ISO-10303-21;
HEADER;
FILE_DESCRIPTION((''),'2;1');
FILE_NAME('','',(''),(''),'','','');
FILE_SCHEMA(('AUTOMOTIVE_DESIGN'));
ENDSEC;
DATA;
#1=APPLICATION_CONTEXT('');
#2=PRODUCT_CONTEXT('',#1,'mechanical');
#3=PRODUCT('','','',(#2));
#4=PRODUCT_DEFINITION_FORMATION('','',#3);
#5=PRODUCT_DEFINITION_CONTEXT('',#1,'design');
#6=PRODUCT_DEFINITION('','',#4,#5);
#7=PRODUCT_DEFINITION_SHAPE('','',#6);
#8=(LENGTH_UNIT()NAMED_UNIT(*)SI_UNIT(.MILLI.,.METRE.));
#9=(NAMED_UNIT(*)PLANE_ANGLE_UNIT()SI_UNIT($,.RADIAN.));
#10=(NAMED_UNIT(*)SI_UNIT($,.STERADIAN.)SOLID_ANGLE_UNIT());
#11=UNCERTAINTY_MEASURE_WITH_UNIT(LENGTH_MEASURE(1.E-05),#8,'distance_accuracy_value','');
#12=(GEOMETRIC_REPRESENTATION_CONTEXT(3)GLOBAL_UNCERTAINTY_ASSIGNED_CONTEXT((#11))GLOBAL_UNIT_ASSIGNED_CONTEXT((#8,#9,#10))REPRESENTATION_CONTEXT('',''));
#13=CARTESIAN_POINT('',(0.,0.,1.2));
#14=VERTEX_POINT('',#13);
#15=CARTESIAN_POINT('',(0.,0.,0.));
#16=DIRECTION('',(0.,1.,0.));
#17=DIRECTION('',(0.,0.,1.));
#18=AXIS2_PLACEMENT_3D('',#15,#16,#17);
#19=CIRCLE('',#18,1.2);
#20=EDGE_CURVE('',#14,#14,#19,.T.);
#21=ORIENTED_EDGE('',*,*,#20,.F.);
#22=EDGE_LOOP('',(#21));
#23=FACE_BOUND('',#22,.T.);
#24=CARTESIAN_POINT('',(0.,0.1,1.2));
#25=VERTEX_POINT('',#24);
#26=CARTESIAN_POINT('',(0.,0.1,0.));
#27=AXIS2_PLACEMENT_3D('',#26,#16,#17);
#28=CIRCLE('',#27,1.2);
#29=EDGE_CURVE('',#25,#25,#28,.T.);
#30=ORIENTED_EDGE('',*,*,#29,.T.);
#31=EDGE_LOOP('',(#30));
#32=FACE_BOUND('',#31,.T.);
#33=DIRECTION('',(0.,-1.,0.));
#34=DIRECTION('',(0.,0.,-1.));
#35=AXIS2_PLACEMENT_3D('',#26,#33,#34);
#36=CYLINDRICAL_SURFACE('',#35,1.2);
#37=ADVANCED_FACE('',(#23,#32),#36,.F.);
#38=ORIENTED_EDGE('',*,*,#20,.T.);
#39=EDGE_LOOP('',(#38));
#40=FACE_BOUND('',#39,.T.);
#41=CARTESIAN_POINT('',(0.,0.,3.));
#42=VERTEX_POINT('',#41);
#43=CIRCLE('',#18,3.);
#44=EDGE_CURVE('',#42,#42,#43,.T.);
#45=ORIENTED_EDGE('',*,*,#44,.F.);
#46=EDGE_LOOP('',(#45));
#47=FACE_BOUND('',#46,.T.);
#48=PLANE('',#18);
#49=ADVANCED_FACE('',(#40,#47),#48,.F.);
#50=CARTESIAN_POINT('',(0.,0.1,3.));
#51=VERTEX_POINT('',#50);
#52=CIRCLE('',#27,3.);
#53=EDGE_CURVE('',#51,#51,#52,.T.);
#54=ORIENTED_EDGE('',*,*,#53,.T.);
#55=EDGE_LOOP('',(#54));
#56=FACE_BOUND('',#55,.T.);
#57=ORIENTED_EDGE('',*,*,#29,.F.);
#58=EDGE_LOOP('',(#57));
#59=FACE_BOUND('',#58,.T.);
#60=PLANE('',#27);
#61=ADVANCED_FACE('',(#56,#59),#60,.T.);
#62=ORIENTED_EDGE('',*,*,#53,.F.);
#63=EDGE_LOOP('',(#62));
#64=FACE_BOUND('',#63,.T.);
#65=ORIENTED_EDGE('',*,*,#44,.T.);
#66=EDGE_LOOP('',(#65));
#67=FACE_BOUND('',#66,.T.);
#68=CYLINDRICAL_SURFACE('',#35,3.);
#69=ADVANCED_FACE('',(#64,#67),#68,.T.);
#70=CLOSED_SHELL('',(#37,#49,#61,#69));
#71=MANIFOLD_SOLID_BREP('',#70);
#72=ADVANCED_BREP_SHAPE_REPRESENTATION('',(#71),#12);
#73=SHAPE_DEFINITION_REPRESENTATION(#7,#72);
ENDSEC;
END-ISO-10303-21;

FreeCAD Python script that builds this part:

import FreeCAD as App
import Part
import Sketcher

doc = App.newDocument("Part")
params = doc.addObject("Spreadsheet::Sheet", "Params")
for row, (alias, value) in enumerate([
    ("sketch1_diameter", "6 mm"),
    ("sketch1_diameter2", "2.4 mm"),
    ("pad1_length", "0.1 mm"),
], start=1):
    params.set(f"A{row}", alias)
    params.set(f"B{row}", "=" + value)
    params.setAlias(f"B{row}", alias)

body = doc.addObject("PartDesign::Body", "Body")

# Sketch on XZ plane
sketch1 = body.newObject("Sketcher::SketchObject", "Sketch")
sketch1.AttachmentSupport = (doc.getObject("XZ_Plane"), [""])
sketch1.MapMode = "FlatFace"
sketch1.addGeometry(Part.Circle(App.Vector(0, 0, 0), App.Vector(0, 0, 1), 3), False)
sketch1.addGeometry(Part.Circle(App.Vector(0, 0, 0), App.Vector(0, 0, 1), 1.2), False)
sketch1.addConstraint(Sketcher.Constraint("Coincident", 0, 3, -1, 1))
sketch1.addConstraint(Sketcher.Constraint("Coincident", 1, 3, -1, 1))
sketch1.addConstraint(Sketcher.Constraint("Diameter", 0, 6.0))
sketch1.addConstraint(Sketcher.Constraint("Diameter", 1, 2.4))
sketch1.setExpression("Constraints[2]", "Params.sketch1_diameter")
sketch1.setExpression("Constraints[3]", "Params.sketch1_diameter2")
pad1 = body.newObject("PartDesign::Pad", "Pad")
pad1.Profile = sketch1
pad1.setExpression("Length", "Params.pad1_length")
pad1.Reversed = True

doc.recompute()
